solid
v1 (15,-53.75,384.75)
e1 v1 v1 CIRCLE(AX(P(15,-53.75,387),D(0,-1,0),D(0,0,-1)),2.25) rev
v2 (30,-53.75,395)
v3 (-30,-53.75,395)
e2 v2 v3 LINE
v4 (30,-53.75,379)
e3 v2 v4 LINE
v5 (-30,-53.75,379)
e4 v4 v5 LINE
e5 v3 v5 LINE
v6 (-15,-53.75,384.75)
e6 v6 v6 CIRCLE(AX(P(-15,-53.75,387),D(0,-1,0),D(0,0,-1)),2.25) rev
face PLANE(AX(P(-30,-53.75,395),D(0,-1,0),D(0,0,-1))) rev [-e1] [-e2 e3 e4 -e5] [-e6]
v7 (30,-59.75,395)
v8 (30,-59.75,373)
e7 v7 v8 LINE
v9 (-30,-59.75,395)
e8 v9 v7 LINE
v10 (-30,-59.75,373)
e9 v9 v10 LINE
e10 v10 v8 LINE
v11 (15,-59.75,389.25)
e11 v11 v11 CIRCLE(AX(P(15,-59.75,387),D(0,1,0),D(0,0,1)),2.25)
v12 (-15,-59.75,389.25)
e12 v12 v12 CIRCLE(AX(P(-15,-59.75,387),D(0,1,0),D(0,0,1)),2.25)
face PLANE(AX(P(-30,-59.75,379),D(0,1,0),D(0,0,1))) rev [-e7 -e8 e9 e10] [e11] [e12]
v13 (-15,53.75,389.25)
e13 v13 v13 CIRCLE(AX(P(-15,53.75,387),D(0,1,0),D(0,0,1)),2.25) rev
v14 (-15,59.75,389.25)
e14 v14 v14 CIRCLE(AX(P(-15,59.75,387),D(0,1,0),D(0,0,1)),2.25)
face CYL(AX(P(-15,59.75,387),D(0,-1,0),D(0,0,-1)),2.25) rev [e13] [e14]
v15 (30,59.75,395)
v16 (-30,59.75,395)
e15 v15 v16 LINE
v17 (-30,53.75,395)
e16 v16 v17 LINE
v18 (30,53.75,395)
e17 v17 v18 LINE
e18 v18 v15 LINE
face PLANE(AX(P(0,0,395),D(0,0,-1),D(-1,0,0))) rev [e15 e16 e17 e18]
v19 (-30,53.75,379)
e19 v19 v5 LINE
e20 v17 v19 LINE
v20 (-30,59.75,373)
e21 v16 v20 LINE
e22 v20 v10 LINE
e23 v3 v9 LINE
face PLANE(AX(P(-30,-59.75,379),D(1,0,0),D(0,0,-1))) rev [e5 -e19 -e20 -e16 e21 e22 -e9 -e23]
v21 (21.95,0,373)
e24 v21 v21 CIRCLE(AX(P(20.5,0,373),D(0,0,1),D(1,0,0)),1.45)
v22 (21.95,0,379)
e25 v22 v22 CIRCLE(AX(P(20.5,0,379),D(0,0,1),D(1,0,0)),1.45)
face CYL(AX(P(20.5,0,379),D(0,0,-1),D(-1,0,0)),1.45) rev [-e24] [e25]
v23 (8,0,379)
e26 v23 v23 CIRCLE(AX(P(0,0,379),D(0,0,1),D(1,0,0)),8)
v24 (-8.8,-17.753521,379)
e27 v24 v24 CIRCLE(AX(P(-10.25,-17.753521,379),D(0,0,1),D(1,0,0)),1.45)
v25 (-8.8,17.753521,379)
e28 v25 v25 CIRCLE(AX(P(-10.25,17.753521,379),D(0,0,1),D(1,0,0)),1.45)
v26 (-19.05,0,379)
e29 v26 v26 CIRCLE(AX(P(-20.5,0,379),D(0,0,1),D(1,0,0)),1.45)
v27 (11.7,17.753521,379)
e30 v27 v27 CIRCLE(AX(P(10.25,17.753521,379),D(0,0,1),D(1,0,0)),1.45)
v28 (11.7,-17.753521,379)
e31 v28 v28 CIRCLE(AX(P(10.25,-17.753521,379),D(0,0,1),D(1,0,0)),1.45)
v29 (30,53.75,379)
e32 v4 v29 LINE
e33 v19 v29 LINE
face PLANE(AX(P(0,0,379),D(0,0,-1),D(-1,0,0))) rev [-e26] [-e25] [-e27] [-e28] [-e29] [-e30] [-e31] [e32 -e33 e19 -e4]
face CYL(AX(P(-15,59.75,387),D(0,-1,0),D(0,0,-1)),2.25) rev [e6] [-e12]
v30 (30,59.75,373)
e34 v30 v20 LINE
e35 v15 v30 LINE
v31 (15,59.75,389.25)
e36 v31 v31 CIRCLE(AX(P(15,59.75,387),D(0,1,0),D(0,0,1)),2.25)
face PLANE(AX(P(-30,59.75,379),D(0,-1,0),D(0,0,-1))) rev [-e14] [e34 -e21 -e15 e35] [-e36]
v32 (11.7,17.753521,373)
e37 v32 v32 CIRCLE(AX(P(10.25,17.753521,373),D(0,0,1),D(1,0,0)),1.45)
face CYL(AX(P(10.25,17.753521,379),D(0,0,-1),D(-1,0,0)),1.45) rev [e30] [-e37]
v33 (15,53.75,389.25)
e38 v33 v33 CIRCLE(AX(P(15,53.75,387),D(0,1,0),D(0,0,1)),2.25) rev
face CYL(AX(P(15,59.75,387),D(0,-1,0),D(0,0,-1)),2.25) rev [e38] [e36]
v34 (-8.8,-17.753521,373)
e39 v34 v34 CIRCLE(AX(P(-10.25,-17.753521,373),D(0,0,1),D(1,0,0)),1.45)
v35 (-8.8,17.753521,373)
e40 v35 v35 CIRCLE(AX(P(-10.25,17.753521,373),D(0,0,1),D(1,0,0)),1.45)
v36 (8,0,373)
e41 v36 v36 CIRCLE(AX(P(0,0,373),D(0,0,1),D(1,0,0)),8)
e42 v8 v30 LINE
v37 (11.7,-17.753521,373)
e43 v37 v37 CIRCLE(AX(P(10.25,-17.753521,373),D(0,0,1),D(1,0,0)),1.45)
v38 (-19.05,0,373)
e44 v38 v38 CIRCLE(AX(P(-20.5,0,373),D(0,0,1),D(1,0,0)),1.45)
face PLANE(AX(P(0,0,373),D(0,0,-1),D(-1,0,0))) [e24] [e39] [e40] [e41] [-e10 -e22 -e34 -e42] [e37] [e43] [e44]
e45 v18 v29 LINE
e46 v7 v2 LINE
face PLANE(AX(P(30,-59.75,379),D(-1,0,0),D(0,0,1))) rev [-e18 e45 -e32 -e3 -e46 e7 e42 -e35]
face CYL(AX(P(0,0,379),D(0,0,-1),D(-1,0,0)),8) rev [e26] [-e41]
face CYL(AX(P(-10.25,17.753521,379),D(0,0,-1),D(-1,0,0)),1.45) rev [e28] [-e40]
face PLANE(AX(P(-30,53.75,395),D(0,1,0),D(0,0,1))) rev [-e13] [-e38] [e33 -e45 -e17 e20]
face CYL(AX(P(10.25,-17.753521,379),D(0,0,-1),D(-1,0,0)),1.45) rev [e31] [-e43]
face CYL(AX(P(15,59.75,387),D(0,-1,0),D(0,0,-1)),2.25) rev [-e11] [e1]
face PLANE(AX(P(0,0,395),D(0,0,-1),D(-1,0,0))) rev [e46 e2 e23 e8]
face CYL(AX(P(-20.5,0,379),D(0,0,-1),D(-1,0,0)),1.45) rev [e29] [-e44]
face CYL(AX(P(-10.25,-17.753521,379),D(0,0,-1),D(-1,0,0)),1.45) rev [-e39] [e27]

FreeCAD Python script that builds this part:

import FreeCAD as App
import Part
import Sketcher
from FreeCAD import Vector
Q = App.Units.Quantity

doc = App.newDocument("Part")
body = doc.addObject("PartDesign::Body", "Body")

sketch1 = body.newObject("Sketcher::SketchObject", "Sketch")
sketch1.AttachmentSupport = (doc.getObject("XY_Plane"), [""])
sketch1.MapMode = "FlatFace"
sketch1.AttachmentOffset = App.Placement(Vector(0, 0, 373), App.Rotation())
sketch1.addGeometry([
    Part.LineSegment(Vector(-30, 60, 0), Vector(-30, -60, 0)),
    Part.LineSegment(Vector(-30, -60, 0), Vector(30, -60, 0)),
    Part.LineSegment(Vector(30, -60, 0), Vector(30, 60, 0)),
    Part.LineSegment(Vector(30, 60, 0), Vector(-30, 60, 0)),
], False)
sketch1.addConstraint([
    Sketcher.Constraint("Coincident", 0, 2, 1, 1),
    Sketcher.Constraint("Coincident", 1, 2, 2, 1),
    Sketcher.Constraint("Coincident", 2, 2, 3, 1),
    Sketcher.Constraint("Coincident", 3, 2, 0, 1),
    Sketcher.Constraint("Vertical", 0),
    Sketcher.Constraint("Horizontal", 1),
    Sketcher.Constraint("Vertical", 2),
    Sketcher.Constraint("Horizontal", 3),
    Sketcher.Constraint("Symmetric", 0, 2, 2, 2, -1, 1),
    Sketcher.Constraint("DistanceX", 1, 1, 1, 2, Q("60 mm")),
    Sketcher.Constraint("DistanceY", 0, 2, 0, 1, Q("119.5 mm")),
])
pad1 = body.newObject("PartDesign::Pad", "Pad")
pad1.Profile = sketch1
pad1.Length = 6

sketch2 = body.newObject("Sketcher::SketchObject", "Sketch001")
sketch2.AttachmentSupport = (doc.getObject("XY_Plane"), [""])
sketch2.MapMode = "FlatFace"
sketch2.AttachmentOffset = App.Placement(Vector(0, 0, 373), App.Rotation())
sketch2.addGeometry(Part.Circle(Vector(0, 0, 0), Vector(0, 0, 1), 8), False)
sketch2.addConstraint([
    Sketcher.Constraint("Coincident", 0, 3, -1, 1),
    Sketcher.Constraint("Diameter", 0, Q("16 mm")),
])
pocket1 = body.newObject("PartDesign::Pocket", "Pocket")
pocket1.Profile = sketch2
pocket1.Length = 6
pocket1.Reversed = True

sketch3 = body.newObject("Sketcher::SketchObject", "Sketch002")
sketch3.AttachmentSupport = (doc.getObject("XY_Plane"), [""])
sketch3.MapMode = "FlatFace"
sketch3.AttachmentOffset = App.Placement(Vector(0, 0, 373), App.Rotation())
sketch3.addGeometry([
    Part.Circle(Vector(20.5, 0, 0), Vector(0, 0, 1), 1.4),
    Part.Circle(Vector(10.2, 17.8, 0), Vector(0, 0, 1), 1.4),
    Part.Circle(Vector(-10.2, 17.8, 0), Vector(0, 0, 1), 1.4),
    Part.Circle(Vector(-20.5, 0, 0), Vector(0, 0, 1), 1.4),
    Part.Circle(Vector(-10.2, -17.8, 0), Vector(0, 0, 1), 1.4),
    Part.Circle(Vector(10.2, -17.8, 0), Vector(0, 0, 1), 1.4),
], False)
sketch3.addConstraint([
    Sketcher.Constraint("Equal", 0, 1),
    Sketcher.Constraint("Equal", 1, 2),
    Sketcher.Constraint("Equal", 2, 3),
    Sketcher.Constraint("Equal", 3, 4),
    Sketcher.Constraint("Equal", 4, 5),
    Sketcher.Constraint("Symmetric", 0, 3, 3, 3, -1, 1),
    Sketcher.Constraint("Symmetric", 1, 3, 4, 3, -1, 1),
    Sketcher.Constraint("Symmetric", 2, 3, 5, 3, -1, 1),
    Sketcher.Constraint("Symmetric", 1, 3, 2, 3, -2),
    Sketcher.Constraint("PointOnObject", 0, 3, -1),
    Sketcher.Constraint("Diameter", 0, Q("2.9 mm")),
    Sketcher.Constraint("DistanceX", 3, 3, 0, 3, Q("41 mm")),
    Sketcher.Constraint("DistanceX", 2, 3, 1, 3, Q("20.5 mm")),
    Sketcher.Constraint("DistanceY", -1, 1, 1, 3, Q("17.753521 mm")),
])
pocket2 = body.newObject("PartDesign::Pocket", "Pocket001")
pocket2.Profile = sketch3
pocket2.Length = 6
pocket2.Reversed = True

sketch4 = body.newObject("Sketcher::SketchObject", "Sketch003")
sketch4.AttachmentSupport = (doc.getObject("XY_Plane"), [""])
sketch4.MapMode = "FlatFace"
sketch4.AttachmentOffset = App.Placement(Vector(0, 0, 379), App.Rotation())
sketch4.addGeometry([
    Part.LineSegment(Vector(-30, 60, 0), Vector(-30, 54, 0)),
    Part.LineSegment(Vector(-30, 54, 0), Vector(30, 54, 0)),
    Part.LineSegment(Vector(30, 54, 0), Vector(30, 60, 0)),
    Part.LineSegment(Vector(30, 60, 0), Vector(-30, 60, 0)),
    Part.LineSegment(Vector(-30, -54, 0), Vector(-30, -60, 0)),
    Part.LineSegment(Vector(-30, -60, 0), Vector(30, -60, 0)),
    Part.LineSegment(Vector(30, -60, 0), Vector(30, -54, 0)),
    Part.LineSegment(Vector(30, -54, 0), Vector(-30, -54, 0)),
], False)
sketch4.addConstraint([
    Sketcher.Constraint("Coincident", 0, 2, 1, 1),
    Sketcher.Constraint("Coincident", 1, 2, 2, 1),
    Sketcher.Constraint("Coincident", 2, 2, 3, 1),
    Sketcher.Constraint("Coincident", 3, 2, 0, 1),
    Sketcher.Constraint("Coincident", 4, 2, 5, 1),
    Sketcher.Constraint("Coincident", 5, 2, 6, 1),
    Sketcher.Constraint("Coincident", 6, 2, 7, 1),
    Sketcher.Constraint("Coincident", 7, 2, 4, 1),
    Sketcher.Constraint("Vertical", 0),
    Sketcher.Constraint("Horizontal", 1),
    Sketcher.Constraint("Vertical", 2),
    Sketcher.Constraint("Horizontal", 3),
    Sketcher.Constraint("Vertical", 4),
    Sketcher.Constraint("Horizontal", 5),
    Sketcher.Constraint("Vertical", 6),
    Sketcher.Constraint("Horizontal", 7),
    Sketcher.Constraint("Symmetric", 2, 2, 4, 2, -1, 1),
    Sketcher.Constraint("Symmetric", 0, 2, 6, 2, -1, 1),
    Sketcher.Constraint("Vertical", 3, 2, 4, 2),
    Sketcher.Constraint("DistanceX", 1, 1, 1, 2, Q("60 mm")),
    Sketcher.Constraint("DistanceY", 0, 2, 0, 1, Q("6 mm")),
    Sketcher.Constraint("DistanceY", 4, 2, 0, 2, Q("113.5 mm")),
])
pad2 = body.newObject("PartDesign::Pad", "Pad001")
pad2.Profile = sketch4
pad2.Length = 16

sketch5 = body.newObject("Sketcher::SketchObject", "Sketch004")
sketch5.AttachmentSupport = (doc.getObject("XZ_Plane"), [""])
sketch5.MapMode = "FlatFace"
sketch5.AttachmentOffset = App.Placement(Vector(0, 0, 59.75), App.Rotation())
sketch5.addGeometry([
    Part.Circle(Vector(-15, 387, 0), Vector(0, 0, 1), 2.2),
    Part.Circle(Vector(15, 387, 0), Vector(0, 0, 1), 2.2),
], False)
sketch5.addConstraint([
    Sketcher.Constraint("Equal", 0, 1),
    Sketcher.Constraint("Symmetric", 0, 3, 1, 3, -2),
    Sketcher.Constraint("Diameter", 0, Q("4.5 mm")),
    Sketcher.Constraint("DistanceX", 0, 3, -1, 1, Q("15 mm")),
    Sketcher.Constraint("DistanceY", -1, 1, 0, 3, Q("387 mm")),
])
pocket3 = body.newObject("PartDesign::Pocket", "Pocket002")
pocket3.Profile = sketch5
pocket3.Length = 119.5

doc.recompute()
